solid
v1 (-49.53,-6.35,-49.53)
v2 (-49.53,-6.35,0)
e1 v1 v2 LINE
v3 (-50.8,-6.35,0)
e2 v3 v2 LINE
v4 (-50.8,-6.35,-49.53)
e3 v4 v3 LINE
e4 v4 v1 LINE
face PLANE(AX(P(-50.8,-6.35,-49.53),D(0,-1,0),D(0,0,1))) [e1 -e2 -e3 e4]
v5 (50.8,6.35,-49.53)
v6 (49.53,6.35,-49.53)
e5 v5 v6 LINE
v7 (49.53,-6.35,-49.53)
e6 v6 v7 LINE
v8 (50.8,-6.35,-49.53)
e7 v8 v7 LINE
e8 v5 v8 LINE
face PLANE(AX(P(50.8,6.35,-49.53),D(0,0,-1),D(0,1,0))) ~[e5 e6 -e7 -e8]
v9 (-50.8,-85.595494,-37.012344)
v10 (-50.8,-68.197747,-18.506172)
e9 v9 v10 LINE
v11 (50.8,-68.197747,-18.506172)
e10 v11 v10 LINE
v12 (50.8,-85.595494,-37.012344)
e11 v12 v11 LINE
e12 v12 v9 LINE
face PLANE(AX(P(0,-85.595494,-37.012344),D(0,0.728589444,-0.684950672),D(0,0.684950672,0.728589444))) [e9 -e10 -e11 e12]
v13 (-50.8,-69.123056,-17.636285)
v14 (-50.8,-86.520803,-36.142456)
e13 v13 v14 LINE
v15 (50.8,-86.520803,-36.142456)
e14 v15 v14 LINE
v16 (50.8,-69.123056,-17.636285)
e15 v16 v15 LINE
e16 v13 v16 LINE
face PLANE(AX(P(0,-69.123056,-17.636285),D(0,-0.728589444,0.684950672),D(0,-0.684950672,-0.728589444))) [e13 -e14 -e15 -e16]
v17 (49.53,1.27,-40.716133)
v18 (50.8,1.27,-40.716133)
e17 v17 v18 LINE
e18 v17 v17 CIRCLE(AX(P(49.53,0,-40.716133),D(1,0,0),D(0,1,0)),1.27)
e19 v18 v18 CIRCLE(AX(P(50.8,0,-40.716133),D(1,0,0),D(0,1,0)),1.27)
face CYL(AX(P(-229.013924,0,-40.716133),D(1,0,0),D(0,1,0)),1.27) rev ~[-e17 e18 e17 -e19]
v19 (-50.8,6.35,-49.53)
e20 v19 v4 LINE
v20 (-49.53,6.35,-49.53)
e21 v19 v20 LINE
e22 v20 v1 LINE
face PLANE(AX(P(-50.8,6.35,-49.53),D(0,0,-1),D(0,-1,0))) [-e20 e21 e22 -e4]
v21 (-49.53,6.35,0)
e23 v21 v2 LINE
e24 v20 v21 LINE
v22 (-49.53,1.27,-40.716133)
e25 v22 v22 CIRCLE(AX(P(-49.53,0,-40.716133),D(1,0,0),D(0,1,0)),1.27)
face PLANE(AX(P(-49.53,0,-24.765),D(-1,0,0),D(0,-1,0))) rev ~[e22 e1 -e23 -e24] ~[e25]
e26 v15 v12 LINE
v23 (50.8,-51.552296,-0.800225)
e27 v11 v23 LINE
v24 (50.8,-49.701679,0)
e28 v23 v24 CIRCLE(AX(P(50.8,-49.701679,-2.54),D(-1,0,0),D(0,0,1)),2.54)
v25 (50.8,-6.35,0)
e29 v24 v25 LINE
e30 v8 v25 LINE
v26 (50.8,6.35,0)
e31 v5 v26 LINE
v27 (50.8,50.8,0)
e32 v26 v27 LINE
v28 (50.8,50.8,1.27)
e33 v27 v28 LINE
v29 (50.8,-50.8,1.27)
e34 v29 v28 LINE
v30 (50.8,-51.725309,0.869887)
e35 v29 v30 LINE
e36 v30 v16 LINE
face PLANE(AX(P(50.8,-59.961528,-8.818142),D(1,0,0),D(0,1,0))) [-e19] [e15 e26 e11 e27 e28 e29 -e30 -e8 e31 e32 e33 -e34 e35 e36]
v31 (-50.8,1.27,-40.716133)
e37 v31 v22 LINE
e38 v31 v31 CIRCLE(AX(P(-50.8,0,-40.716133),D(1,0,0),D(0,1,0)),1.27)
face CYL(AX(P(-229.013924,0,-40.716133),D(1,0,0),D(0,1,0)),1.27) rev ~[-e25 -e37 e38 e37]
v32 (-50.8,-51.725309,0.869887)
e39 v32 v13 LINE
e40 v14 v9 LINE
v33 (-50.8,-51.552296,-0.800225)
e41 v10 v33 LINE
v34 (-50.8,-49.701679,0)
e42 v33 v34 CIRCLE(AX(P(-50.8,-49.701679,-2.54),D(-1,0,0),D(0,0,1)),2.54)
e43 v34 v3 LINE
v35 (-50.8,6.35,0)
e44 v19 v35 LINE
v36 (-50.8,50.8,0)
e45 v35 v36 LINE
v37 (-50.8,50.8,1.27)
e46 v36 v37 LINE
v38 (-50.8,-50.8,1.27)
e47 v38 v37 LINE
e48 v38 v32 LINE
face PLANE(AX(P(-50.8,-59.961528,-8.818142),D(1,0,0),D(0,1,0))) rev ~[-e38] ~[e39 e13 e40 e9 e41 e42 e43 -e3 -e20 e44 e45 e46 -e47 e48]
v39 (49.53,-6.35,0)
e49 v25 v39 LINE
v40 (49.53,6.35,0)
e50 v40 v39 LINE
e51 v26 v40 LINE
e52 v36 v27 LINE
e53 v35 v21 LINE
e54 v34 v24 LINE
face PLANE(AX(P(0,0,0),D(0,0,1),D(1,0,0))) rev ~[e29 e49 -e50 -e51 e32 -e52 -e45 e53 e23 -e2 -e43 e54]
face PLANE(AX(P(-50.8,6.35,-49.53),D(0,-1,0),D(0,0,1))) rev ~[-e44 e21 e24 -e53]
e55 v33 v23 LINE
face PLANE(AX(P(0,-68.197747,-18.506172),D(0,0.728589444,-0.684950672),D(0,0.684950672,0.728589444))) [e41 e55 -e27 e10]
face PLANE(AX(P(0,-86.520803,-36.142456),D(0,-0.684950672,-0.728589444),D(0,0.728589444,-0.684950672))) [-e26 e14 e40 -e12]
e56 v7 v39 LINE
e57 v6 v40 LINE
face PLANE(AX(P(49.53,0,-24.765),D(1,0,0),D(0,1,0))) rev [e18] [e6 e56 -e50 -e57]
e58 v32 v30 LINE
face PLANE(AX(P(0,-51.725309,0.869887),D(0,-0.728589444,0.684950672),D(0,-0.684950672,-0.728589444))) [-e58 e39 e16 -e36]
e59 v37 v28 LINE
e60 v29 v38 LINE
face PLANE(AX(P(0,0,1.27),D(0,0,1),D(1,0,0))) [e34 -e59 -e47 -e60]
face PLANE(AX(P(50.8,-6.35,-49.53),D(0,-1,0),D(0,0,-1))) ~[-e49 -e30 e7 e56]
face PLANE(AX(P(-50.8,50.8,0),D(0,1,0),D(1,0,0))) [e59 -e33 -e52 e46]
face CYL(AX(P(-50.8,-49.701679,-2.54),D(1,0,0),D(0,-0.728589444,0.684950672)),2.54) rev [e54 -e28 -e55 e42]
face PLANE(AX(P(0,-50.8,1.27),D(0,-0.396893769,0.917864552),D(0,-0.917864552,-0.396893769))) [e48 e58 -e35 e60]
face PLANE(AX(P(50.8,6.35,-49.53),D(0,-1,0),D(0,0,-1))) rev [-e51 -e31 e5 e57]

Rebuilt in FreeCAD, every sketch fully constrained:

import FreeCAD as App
import Part
import Sketcher
Q = App.Units.Quantity


def edges_at(feature, points):
    """Names of the edges that pass closest to the given points."""
    edges = feature.Shape.Edges
    near = lambda p: min(range(len(edges)), key=lambda i: edges[i].distToShape(Part.Vertex(*p))[0])
    return sorted({f"Edge{near(p) + 1}" for p in points})

doc = App.newDocument("Part")
body = doc.addObject("PartDesign::Body", "Body")

# Sketch on XY plane
sketch1 = doc.addObject("Sketcher::SketchObject", "Sketch")
body.addObject(sketch1)
sketch1.AttachmentSupport = (doc.XY_Plane, [""])
sketch1.MapMode = "FlatFace"
sketch1.addGeometry(Part.LineSegment(App.Vector(-51, 51, 0), App.Vector(-51, -51, 0)), False)
sketch1.addGeometry(Part.LineSegment(App.Vector(-51, -51, 0), App.Vector(51, -51, 0)), False)
sketch1.addGeometry(Part.LineSegment(App.Vector(51, -51, 0), App.Vector(51, 51, 0)), False)
sketch1.addGeometry(Part.LineSegment(App.Vector(51, 51, 0), App.Vector(-51, 51, 0)), False)
sketch1.addConstraint(Sketcher.Constraint("Coincident", 0, 2, 1, 1))
sketch1.addConstraint(Sketcher.Constraint("Coincident", 1, 2, 2, 1))
sketch1.addConstraint(Sketcher.Constraint("Coincident", 2, 2, 3, 1))
sketch1.addConstraint(Sketcher.Constraint("Coincident", 3, 2, 0, 1))
sketch1.addConstraint(Sketcher.Constraint("Vertical", 0))
sketch1.addConstraint(Sketcher.Constraint("Horizontal", 1))
sketch1.addConstraint(Sketcher.Constraint("Vertical", 2))
sketch1.addConstraint(Sketcher.Constraint("Horizontal", 3))
sketch1.addConstraint(Sketcher.Constraint("Symmetric", 0, 2, 2, 2, -1, 1))
sketch1.addConstraint(Sketcher.Constraint("Equal", 3, 0))
sketch1.addConstraint(Sketcher.Constraint("DistanceX", 1, 1, 1, 2, Q("4 in")))
pad1 = doc.addObject("PartDesign::Pad", "Pad")
body.addObject(pad1)
pad1.Profile = sketch1
pad1.Length = Q("0.05 in")

# Sketch on YZ plane
sketch2 = doc.addObject("Sketcher::SketchObject", "Sketch001")
body.addObject(sketch2)
sketch2.AttachmentSupport = (doc.YZ_Plane, [""])
sketch2.MapMode = "FlatFace"
sketch2.addGeometry(Part.LineSegment(App.Vector(-68.2, -18.5, 0), App.Vector(-50.8, 0, 0)), False)
sketch2.addGeometry(Part.LineSegment(App.Vector(-50.8, 0, 0), App.Vector(-50.8, 1.3, 0)), False)
sketch2.addGeometry(Part.LineSegment(App.Vector(-50.8, 1.3, 0), App.Vector(-51.7, 0.9, 0)), False)
sketch2.addGeometry(Part.LineSegment(App.Vector(-51.7, 0.9, 0), App.Vector(-69.1, -17.6, 0)), False)
sketch2.addGeometry(Part.LineSegment(App.Vector(-69.1, -17.6, 0), App.Vector(-86.5, -36.1, 0)), False)
sketch2.addGeometry(Part.LineSegment(App.Vector(-86.5, -36.1, 0), App.Vector(-85.6, -37, 0)), False)
sketch2.addGeometry(Part.LineSegment(App.Vector(-85.6, -37, 0), App.Vector(-68.2, -18.5, 0)), False)
sketch2.addConstraint(Sketcher.Constraint("Coincident", 0, 2, 1, 1))
sketch2.addConstraint(Sketcher.Constraint("Coincident", 1, 2, 2, 1))
sketch2.addConstraint(Sketcher.Constraint("Coincident", 2, 2, 3, 1))
sketch2.addConstraint(Sketcher.Constraint("Coincident", 3, 2, 4, 1))
sketch2.addConstraint(Sketcher.Constraint("Coincident", 4, 2, 5, 1))
sketch2.addConstraint(Sketcher.Constraint("Coincident", 5, 2, 6, 1))
sketch2.addConstraint(Sketcher.Constraint("Coincident", 6, 2, 0, 1))
sketch2.addConstraint(Sketcher.Constraint("Vertical", 1))
sketch2.addConstraint(Sketcher.Constraint("PointOnObject", 0, 2, -1))
sketch2.addConstraint(Sketcher.Constraint("Parallel", 0, 3))
sketch2.addConstraint(Sketcher.Constraint("Parallel", 3, 4))
sketch2.addConstraint(Sketcher.Constraint("Perpendicular", 4, 5))
sketch2.addConstraint(Sketcher.Constraint("Perpendicular", 5, 6))
sketch2.addConstraint(Sketcher.Constraint("Equal", 0, 3))
sketch2.addConstraint(Sketcher.Constraint("Equal", 3, 4))
sketch2.addConstraint(Sketcher.Constraint("Equal", 4, 6))
sketch2.addConstraint(Sketcher.Constraint("Distance", 0, Q("1 in")))
sketch2.addConstraint(Sketcher.Constraint("DistanceX", 0, 2, -1, 1, Q("2 in")))
sketch2.addConstraint(Sketcher.Constraint("DistanceY", 1, 1, 1, 2, Q("0.05 in")))
sketch2.addConstraint(Sketcher.Constraint("Distance", 5, Q("0.05 in")))
sketch2.addConstraint(Sketcher.Constraint("Distance", 2, 1.00811))
pad2 = doc.addObject("PartDesign::Pad", "Pad001")
body.addObject(pad2)
pad2.Profile = sketch2
pad2.Type = "TwoLengths"
pad2.Length = Q("2 in")
pad2.Length2 = Q("2 in")

# Sketch on YZ plane
sketch3 = doc.addObject("Sketcher::SketchObject", "Sketch002")
body.addObject(sketch3)
sketch3.AttachmentSupport = (doc.YZ_Plane, [""])
sketch3.MapMode = "FlatFace"
sketch3.AttachmentOffset = App.Placement(App.Vector(0, 0, -2 * 25.4), App.Rotation())
sketch3.addGeometry(Part.LineSegment(App.Vector(6, 0, 0), App.Vector(6, -50, 0)), False)
sketch3.addGeometry(Part.LineSegment(App.Vector(6, -50, 0), App.Vector(-6, -50, 0)), False)
sketch3.addGeometry(Part.LineSegment(App.Vector(-6, -50, 0), App.Vector(-6, 0, 0)), False)
sketch3.addGeometry(Part.LineSegment(App.Vector(-6, 0, 0), App.Vector(6, 0, 0)), False)
sketch3.addConstraint(Sketcher.Constraint("Coincident", 0, 2, 1, 1))
sketch3.addConstraint(Sketcher.Constraint("Coincident", 1, 2, 2, 1))
sketch3.addConstraint(Sketcher.Constraint("Coincident", 2, 2, 3, 1))
sketch3.addConstraint(Sketcher.Constraint("Coincident", 3, 2, 0, 1))
sketch3.addConstraint(Sketcher.Constraint("Vertical", 0))
sketch3.addConstraint(Sketcher.Constraint("Horizontal", 1))
sketch3.addConstraint(Sketcher.Constraint("Vertical", 2))
sketch3.addConstraint(Sketcher.Constraint("Horizontal", 3))
sketch3.addConstraint(Sketcher.Constraint("Symmetric", 2, 2, 3, 2, -1, 1))
sketch3.addConstraint(Sketcher.Constraint("DistanceX", 1, 2, 1, 1, Q("0.5 in")))
sketch3.addConstraint(Sketcher.Constraint("DistanceY", 0, 2, 0, 1, Q("1.95 in")))
pad3 = doc.addObject("PartDesign::Pad", "Pad002")
body.addObject(pad3)
pad3.Profile = sketch3
pad3.Length = Q("0.05 in")
body2 = doc.addObject("PartDesign::Body", "Body001")
doc.recompute()

body2.BaseFeature = body
doc.recompute()

mirroring = doc.addObject("Part::Mirroring", "Mirroring")
mirroring.Source = body
mirroring.Base = App.Vector(0, 0, 0)
mirroring.Normal = App.Vector(1, 0, 0)
body3 = doc.addObject("PartDesign::Body", "Body002")
body3.BaseFeature = mirroring
boolean = doc.addObject("PartDesign::Boolean", "Boolean")
body2.addObject(boolean)
boolean.Type = "Fuse"
boolean.addObjects([body3])
doc.recompute()

# Sketch on YZ plane
sketch4 = doc.addObject("Sketcher::SketchObject", "Sketch003")
body2.addObject(sketch4)
sketch4.AttachmentSupport = (doc.getObject("YZ_Plane001"), [""])
sketch4.MapMode = "FlatFace"
sketch4.AttachmentOffset = App.Placement(App.Vector(0, 0, -2 * 25.4), App.Rotation())
sketch4.addGeometry(Part.Circle(App.Vector(0, -40.7, 0), App.Vector(0, 0, 1), 1.3), False)
sketch4.addConstraint(Sketcher.Constraint("PointOnObject", 0, 3, -2))
sketch4.addConstraint(Sketcher.Constraint("Diameter", 0, Q("0.1 in")))
sketch4.addConstraint(Sketcher.Constraint("DistanceY", 0, 3, -1, 1, 40.716133))
doc.recompute()
hole = doc.addObject("PartDesign::Hole", "Hole")
body2.addObject(hole)
hole.Profile = sketch4
hole.ThreadType = "None"
hole.Diameter = Q("0.1 in")
hole.DepthType = "ThroughAll"
hole.Reversed = True
doc.recompute()

fillet = doc.addObject("PartDesign::Fillet", "Fillet")
body2.addObject(fillet)
fillet.Base = (hole, edges_at(hole, [(0, -50.8, 0)]))
fillet.Radius = Q("0.1 in")
mirroring.Visibility = False

doc.recompute()
